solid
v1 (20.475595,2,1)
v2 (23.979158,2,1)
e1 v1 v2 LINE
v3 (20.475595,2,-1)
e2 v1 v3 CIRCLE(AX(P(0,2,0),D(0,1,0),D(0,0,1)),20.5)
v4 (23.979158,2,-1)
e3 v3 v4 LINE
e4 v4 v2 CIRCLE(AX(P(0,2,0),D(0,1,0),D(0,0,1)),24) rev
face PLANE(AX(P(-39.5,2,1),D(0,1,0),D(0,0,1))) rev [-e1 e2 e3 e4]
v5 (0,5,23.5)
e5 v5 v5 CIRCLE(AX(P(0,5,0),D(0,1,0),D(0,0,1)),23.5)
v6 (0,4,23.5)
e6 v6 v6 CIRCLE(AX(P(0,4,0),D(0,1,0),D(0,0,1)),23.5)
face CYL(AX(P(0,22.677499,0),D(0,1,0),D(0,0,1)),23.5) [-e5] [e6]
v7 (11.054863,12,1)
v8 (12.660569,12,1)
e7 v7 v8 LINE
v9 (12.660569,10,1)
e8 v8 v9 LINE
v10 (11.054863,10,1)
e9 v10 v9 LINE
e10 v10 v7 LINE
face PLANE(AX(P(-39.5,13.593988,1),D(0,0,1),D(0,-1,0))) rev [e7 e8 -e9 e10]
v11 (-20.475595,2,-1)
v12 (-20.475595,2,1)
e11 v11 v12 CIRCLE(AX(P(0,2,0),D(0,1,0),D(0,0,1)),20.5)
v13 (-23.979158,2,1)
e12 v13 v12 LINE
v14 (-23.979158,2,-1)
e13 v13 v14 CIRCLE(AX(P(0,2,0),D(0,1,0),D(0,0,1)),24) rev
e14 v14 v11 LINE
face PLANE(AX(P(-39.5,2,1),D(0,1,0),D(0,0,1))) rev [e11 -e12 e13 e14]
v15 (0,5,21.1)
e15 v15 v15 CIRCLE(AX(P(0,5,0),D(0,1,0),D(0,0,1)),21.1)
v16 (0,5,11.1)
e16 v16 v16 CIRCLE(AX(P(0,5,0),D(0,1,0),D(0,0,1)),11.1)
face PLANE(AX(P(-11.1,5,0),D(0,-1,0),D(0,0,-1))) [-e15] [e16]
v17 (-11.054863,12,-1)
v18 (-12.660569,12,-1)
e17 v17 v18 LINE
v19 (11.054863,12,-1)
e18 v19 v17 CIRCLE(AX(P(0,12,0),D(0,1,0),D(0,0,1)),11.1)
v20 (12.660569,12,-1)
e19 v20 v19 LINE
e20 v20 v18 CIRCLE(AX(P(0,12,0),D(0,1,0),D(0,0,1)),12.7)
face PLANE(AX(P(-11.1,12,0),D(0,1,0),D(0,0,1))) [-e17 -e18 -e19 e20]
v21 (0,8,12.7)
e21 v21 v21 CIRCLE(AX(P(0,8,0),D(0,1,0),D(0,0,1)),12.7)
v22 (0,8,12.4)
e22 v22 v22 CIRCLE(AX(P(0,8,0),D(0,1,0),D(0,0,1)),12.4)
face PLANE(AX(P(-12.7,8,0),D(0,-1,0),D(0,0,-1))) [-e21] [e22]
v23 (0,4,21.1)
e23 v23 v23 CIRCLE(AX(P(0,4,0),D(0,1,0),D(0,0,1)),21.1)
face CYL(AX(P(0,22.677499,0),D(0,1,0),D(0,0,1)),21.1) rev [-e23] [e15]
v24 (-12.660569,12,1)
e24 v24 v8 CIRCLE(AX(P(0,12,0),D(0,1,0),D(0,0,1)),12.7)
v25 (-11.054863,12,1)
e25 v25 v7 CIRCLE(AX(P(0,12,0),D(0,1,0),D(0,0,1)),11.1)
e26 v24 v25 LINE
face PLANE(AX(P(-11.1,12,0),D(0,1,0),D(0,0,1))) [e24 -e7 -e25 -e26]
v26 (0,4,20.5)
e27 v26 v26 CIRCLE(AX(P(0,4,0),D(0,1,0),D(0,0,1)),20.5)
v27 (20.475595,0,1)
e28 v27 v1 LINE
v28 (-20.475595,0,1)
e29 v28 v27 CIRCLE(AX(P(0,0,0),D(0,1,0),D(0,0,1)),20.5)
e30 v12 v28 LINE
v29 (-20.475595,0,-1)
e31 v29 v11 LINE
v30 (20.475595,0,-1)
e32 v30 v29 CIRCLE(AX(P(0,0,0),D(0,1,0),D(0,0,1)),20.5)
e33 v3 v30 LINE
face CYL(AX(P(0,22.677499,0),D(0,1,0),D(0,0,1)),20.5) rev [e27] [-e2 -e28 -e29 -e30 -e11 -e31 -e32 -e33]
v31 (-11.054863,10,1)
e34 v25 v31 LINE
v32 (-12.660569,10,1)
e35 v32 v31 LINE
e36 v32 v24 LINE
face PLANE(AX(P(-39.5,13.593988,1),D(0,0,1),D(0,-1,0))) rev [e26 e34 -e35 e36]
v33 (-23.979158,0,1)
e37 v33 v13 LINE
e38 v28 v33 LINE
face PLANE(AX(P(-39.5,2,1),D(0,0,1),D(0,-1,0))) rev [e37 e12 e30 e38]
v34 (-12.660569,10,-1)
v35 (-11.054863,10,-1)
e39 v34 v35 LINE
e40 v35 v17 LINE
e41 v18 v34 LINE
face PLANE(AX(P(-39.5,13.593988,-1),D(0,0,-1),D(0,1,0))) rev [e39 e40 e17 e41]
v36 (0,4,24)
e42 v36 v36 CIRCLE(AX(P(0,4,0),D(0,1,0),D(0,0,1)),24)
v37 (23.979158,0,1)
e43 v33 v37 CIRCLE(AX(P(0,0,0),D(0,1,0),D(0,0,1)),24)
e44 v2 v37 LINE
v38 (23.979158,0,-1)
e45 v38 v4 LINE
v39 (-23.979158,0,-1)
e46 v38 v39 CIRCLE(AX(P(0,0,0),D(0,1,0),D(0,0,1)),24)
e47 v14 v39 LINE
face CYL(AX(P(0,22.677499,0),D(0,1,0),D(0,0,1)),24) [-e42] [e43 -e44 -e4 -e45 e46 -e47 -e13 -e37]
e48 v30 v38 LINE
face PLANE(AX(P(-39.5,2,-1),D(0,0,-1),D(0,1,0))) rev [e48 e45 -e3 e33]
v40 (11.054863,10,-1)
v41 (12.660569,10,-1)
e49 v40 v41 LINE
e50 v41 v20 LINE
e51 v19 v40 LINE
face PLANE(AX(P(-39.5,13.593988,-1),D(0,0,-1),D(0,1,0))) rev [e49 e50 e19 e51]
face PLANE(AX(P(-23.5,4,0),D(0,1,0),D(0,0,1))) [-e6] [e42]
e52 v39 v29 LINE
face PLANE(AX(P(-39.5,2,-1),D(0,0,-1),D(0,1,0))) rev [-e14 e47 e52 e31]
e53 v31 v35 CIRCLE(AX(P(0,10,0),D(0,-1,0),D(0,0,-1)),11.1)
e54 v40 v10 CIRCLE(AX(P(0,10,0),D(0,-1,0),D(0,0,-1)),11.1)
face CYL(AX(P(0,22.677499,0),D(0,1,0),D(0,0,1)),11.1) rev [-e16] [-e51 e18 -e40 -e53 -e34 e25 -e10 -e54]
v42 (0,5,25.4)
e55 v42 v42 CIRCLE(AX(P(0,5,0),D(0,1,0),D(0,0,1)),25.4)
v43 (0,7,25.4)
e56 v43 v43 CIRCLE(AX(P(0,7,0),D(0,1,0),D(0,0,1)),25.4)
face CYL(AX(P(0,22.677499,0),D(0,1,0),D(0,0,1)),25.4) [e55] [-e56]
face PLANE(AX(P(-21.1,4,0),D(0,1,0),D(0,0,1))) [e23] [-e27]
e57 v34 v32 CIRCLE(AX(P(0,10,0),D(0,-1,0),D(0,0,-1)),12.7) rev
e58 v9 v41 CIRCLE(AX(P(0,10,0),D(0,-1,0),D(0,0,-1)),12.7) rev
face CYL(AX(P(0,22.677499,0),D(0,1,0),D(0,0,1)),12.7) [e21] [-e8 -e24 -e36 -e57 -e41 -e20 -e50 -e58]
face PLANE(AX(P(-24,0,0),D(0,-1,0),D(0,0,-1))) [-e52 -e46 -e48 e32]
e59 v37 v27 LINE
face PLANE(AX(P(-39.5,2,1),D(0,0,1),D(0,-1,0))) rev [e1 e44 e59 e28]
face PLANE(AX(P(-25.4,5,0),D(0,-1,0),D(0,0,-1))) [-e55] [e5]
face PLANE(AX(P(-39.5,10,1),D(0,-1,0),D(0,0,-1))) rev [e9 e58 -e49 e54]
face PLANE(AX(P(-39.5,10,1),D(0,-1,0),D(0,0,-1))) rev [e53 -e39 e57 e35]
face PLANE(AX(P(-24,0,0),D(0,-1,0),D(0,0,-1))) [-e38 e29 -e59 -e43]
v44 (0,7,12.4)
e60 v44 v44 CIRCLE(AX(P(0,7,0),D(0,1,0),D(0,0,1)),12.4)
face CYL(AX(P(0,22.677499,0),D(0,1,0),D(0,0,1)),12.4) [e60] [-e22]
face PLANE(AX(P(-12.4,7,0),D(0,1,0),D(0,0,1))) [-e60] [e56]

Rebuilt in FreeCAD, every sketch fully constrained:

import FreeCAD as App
import Part
import Sketcher
from FreeCAD import Vector
Q = App.Units.Quantity

doc = App.newDocument("Part")
body = doc.addObject("PartDesign::Body", "Body")

sketch1 = body.newObject("Sketcher::SketchObject", "Sketch")
sketch1.AttachmentSupport = (doc.getObject("XY_Plane"), [""])
sketch1.MapMode = "FlatFace"
sketch1.addGeometry([
    Part.LineSegment(Vector(-11.1, 12, 0), Vector(-12.7, 12, 0)),
    Part.LineSegment(Vector(-12.7, 12, 0), Vector(-12.7, 8, 0)),
    Part.LineSegment(Vector(-12.7, 8, 0), Vector(-12.4, 8, 0)),
    Part.LineSegment(Vector(-12.4, 8, 0), Vector(-12.4, 7, 0)),
    Part.LineSegment(Vector(-12.4, 7, 0), Vector(-25.4, 7, 0)),
    Part.LineSegment(Vector(-25.4, 7, 0), Vector(-25.4, 5, 0)),
    Part.LineSegment(Vector(-25.4, 5, 0), Vector(-23.5, 5, 0)),
    Part.LineSegment(Vector(-23.5, 5, 0), Vector(-23.5, 4, 0)),
    Part.LineSegment(Vector(-23.5, 4, 0), Vector(-24, 4, 0)),
    Part.LineSegment(Vector(-24, 4, 0), Vector(-24, 0, 0)),
    Part.LineSegment(Vector(-24, 0, 0), Vector(-20.5, 0, 0)),
    Part.LineSegment(Vector(-20.5, 0, 0), Vector(-20.5, 4, 0)),
    Part.LineSegment(Vector(-20.5, 4, 0), Vector(-21.1, 4, 0)),
    Part.LineSegment(Vector(-21.1, 4, 0), Vector(-21.1, 5, 0)),
    Part.LineSegment(Vector(-21.1, 5, 0), Vector(-11.1, 5, 0)),
    Part.LineSegment(Vector(-11.1, 5, 0), Vector(-11.1, 12, 0)),
], False)
sketch1.addConstraint([
    Sketcher.Constraint("Coincident", 0, 2, 1, 1),
    Sketcher.Constraint("Coincident", 1, 2, 2, 1),
    Sketcher.Constraint("Coincident", 2, 2, 3, 1),
    Sketcher.Constraint("Coincident", 3, 2, 4, 1),
    Sketcher.Constraint("Coincident", 4, 2, 5, 1),
    Sketcher.Constraint("Coincident", 5, 2, 6, 1),
    Sketcher.Constraint("Coincident", 6, 2, 7, 1),
    Sketcher.Constraint("Coincident", 7, 2, 8, 1),
    Sketcher.Constraint("Coincident", 8, 2, 9, 1),
    Sketcher.Constraint("Coincident", 9, 2, 10, 1),
    Sketcher.Constraint("Coincident", 10, 2, 11, 1),
    Sketcher.Constraint("Coincident", 11, 2, 12, 1),
    Sketcher.Constraint("Coincident", 12, 2, 13, 1),
    Sketcher.Constraint("Coincident", 13, 2, 14, 1),
    Sketcher.Constraint("Coincident", 14, 2, 15, 1),
    Sketcher.Constraint("Coincident", 15, 2, 0, 1),
    Sketcher.Constraint("Horizontal", 0),
    Sketcher.Constraint("Vertical", 1),
    Sketcher.Constraint("Horizontal", 2),
    Sketcher.Constraint("Vertical", 3),
    Sketcher.Constraint("Horizontal", 4),
    Sketcher.Constraint("Vertical", 5),
    Sketcher.Constraint("Horizontal", 6),
    Sketcher.Constraint("Vertical", 7),
    Sketcher.Constraint("Horizontal", 8),
    Sketcher.Constraint("Vertical", 9),
    Sketcher.Constraint("Horizontal", 10),
    Sketcher.Constraint("Vertical", 11),
    Sketcher.Constraint("Horizontal", 12),
    Sketcher.Constraint("Vertical", 13),
    Sketcher.Constraint("Horizontal", 14),
    Sketcher.Constraint("Vertical", 15),
    Sketcher.Constraint("PointOnObject", 9, 2, -1),
    Sketcher.Constraint("Horizontal", 8, 2, 11, 2),
    Sketcher.Constraint("Horizontal", 6, 2, 13, 2),
    Sketcher.Constraint("Equal", 3, 7),
    Sketcher.Constraint("Equal", 1, 9),
    Sketcher.Constraint("DistanceX", 4, 2, 4, 1, Q("13 mm")),
    Sketcher.Constraint("DistanceX", 14, 1, 14, 2, Q("10 mm")),
    Sketcher.Constraint("DistanceY", 1, 2, 1, 1, Q("4 mm")),
    Sketcher.Constraint("DistanceY", 3, 2, 3, 1, Q("1 mm")),
    Sketcher.Constraint("DistanceY", 5, 2, 5, 1, Q("2 mm")),
    Sketcher.Constraint("DistanceX", 0, 2, 0, 1, Q("1.6 mm")),
    Sketcher.Constraint("DistanceX", 2, 1, 2, 2, Q("0.3 mm")),
    Sketcher.Constraint("DistanceX", 6, 1, 6, 2, Q("1.9 mm")),
    Sketcher.Constraint("DistanceX", 8, 2, 8, 1, Q("0.5 mm")),
    Sketcher.Constraint("DistanceX", 10, 1, 10, 2, Q("3.5 mm")),
    Sketcher.Constraint("DistanceX", 8, 2, -1, 1, Q("24 mm")),
])
revolution = body.newObject("PartDesign::Revolution", "Revolution")
revolution.Profile = sketch1
revolution.ReferenceAxis = (sketch1, ["V_Axis"])
revolution.Angle = 360

sketch2 = body.newObject("Sketcher::SketchObject", "Sketch001")
sketch2.AttachmentSupport = (doc.getObject("YZ_Plane"), [""])
sketch2.MapMode = "FlatFace"
sketch2.addGeometry([
    Part.LineSegment(Vector(13.593988, 1, 0), Vector(10, 1, 0)),
    Part.LineSegment(Vector(10, 1, 0), Vector(10, -1, 0)),
    Part.LineSegment(Vector(10, -1, 0), Vector(13.593988, -1, 0)),
    Part.LineSegment(Vector(13.593988, -1, 0), Vector(13.593988, 1, 0)),
    Part.LineSegment(Vector(2, 1, 0), Vector(-4.667892, 1, 0)),
    Part.LineSegment(Vector(-4.667892, 1, 0), Vector(-4.667892, -1, 0)),
    Part.LineSegment(Vector(-4.667892, -1, 0), Vector(2, -1, 0)),
    Part.LineSegment(Vector(2, -1, 0), Vector(2, 1, 0)),
], False)
sketch2.addConstraint([
    Sketcher.Constraint("Coincident", 0, 2, 1, 1),
    Sketcher.Constraint("Coincident", 1, 2, 2, 1),
    Sketcher.Constraint("Coincident", 2, 2, 3, 1),
    Sketcher.Constraint("Coincident", 3, 2, 0, 1),
    Sketcher.Constraint("Coincident", 4, 2, 5, 1),
    Sketcher.Constraint("Coincident", 5, 2, 6, 1),
    Sketcher.Constraint("Coincident", 6, 2, 7, 1),
    Sketcher.Constraint("Coincident", 7, 2, 4, 1),
    Sketcher.Constraint("Horizontal", 0),
    Sketcher.Constraint("Vertical", 1),
    Sketcher.Constraint("Horizontal", 2),
    Sketcher.Constraint("Vertical", 3),
    Sketcher.Constraint("Horizontal", 4),
    Sketcher.Constraint("Vertical", 5),
    Sketcher.Constraint("Horizontal", 6),
    Sketcher.Constraint("Vertical", 7),
    Sketcher.Constraint("Horizontal", 3, 2, 4, 2),
    Sketcher.Constraint("Horizontal", 2, 2, 5, 2),
    Sketcher.Constraint("DistanceY", 1, 2, 1, 1, Q("2 mm")),
    Sketcher.Constraint("DistanceX", -1, 1, 0, 2, Q("10 mm")),
    Sketcher.Constraint("DistanceY", -1, 1, 0, 2, Q("1 mm")),
    Sketcher.Constraint("DistanceX", -1, 1, 6, 2, Q("2 mm")),
    Sketcher.Constraint("DistanceX", 0, 2, 0, 1, Q("3.593988 mm")),
    Sketcher.Constraint("DistanceX", 4, 2, 4, 1, Q("6.667892 mm")),
])
pocket1 = body.newObject("PartDesign::Pocket", "Pocket")
pocket1.Profile = sketch2
pocket1.Length = 79
pocket1.Midplane = True

doc.recompute()
